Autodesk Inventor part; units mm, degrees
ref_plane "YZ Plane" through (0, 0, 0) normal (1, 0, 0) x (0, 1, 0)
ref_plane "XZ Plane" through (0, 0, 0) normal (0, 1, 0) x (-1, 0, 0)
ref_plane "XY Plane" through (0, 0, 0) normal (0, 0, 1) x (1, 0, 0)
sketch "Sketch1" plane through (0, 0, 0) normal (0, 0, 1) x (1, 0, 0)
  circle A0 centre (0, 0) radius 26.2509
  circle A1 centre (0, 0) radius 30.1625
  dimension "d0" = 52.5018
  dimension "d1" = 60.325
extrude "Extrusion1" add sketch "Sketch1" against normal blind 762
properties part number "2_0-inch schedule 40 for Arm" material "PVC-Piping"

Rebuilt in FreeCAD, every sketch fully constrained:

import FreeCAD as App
import Part
import Sketcher

V = App.Vector
Q = App.Units.Quantity

doc = App.newDocument("Part")
body = doc.addObject("PartDesign::Body", "Body")

sketch1 = body.newObject("Sketcher::SketchObject", "Sketch")
sketch1.AttachmentSupport = (doc.getObject("XY_Plane"), [""])
sketch1.MapMode = "FlatFace"
sketch1.addGeometry(Part.Circle(V(0, 0, 0), V(0, 0, 1), 30), False)
sketch1.addGeometry(Part.Circle(V(0, 0, 0), V(0, 0, 1), 26), False)
sketch1.addConstraint(Sketcher.Constraint("Coincident", 0, 3, -1, 1))
sketch1.addConstraint(Sketcher.Constraint("Coincident", 1, 3, -1, 1))
sketch1.addConstraint(Sketcher.Constraint("Diameter", 0, Q("2.375 in")))
sketch1.addConstraint(Sketcher.Constraint("Diameter", 1, Q("2.067 in")))
pad1 = body.newObject("PartDesign::Pad", "Pad")
pad1.Profile = sketch1
pad1.Length = Q("30 in")
pad1.Reversed = True

doc.recompute()
